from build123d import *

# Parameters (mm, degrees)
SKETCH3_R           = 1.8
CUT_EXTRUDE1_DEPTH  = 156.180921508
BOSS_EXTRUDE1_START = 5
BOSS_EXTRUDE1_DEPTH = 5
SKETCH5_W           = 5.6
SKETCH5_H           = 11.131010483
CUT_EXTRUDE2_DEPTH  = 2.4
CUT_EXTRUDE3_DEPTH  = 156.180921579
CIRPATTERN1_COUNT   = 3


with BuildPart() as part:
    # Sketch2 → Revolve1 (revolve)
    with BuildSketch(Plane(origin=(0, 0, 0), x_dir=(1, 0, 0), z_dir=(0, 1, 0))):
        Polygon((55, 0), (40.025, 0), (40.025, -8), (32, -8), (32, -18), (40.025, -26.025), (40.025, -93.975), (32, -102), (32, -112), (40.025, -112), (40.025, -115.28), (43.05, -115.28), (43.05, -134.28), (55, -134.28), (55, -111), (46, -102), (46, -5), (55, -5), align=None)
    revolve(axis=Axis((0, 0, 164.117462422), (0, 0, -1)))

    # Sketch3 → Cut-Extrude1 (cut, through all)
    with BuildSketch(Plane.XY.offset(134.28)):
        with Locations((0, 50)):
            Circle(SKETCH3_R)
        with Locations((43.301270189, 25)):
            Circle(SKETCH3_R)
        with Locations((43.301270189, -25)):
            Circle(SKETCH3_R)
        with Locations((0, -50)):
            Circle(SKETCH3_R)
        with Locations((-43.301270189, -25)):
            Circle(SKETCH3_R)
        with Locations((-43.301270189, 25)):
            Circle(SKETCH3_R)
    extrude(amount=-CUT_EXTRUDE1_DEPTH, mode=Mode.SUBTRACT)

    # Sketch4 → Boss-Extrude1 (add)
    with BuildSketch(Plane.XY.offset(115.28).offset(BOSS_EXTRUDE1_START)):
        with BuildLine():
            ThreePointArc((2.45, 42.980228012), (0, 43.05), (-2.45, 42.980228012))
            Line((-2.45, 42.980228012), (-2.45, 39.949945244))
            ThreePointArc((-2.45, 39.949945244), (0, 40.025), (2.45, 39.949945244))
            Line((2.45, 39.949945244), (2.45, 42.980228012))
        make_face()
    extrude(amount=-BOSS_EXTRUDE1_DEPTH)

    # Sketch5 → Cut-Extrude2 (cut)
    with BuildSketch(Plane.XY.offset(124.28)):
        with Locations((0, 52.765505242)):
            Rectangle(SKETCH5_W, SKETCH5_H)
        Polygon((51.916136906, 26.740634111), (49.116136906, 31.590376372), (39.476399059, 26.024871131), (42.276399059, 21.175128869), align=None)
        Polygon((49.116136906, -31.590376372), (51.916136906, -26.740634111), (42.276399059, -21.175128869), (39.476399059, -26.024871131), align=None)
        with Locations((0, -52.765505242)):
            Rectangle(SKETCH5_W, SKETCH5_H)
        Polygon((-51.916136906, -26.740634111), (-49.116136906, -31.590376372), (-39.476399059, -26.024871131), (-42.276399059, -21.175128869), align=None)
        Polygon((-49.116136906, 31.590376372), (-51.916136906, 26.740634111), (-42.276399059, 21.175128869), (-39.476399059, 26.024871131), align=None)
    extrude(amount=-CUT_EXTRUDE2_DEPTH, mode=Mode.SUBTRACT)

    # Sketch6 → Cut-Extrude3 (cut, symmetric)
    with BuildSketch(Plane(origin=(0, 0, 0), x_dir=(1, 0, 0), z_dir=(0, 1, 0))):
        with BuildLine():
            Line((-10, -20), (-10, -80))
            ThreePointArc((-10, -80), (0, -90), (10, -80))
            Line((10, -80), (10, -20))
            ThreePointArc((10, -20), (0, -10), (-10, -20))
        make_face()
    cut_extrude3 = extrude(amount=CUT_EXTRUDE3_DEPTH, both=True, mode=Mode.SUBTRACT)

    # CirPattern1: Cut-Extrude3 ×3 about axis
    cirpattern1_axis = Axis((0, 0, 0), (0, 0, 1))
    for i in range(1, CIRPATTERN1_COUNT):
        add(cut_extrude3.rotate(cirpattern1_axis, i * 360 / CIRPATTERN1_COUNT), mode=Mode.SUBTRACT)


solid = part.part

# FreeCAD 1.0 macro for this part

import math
import FreeCAD as App
import Part
import Sketcher
Q = App.Units.Quantity

doc = App.newDocument("Part")
body = doc.addObject("PartDesign::Body", "Body")

sketch1 = doc.addObject("Sketcher::SketchObject", "Sketch")
body.addObject(sketch1)
sketch1.AttachmentSupport = (doc.XZ_Plane, [""])
sketch1.MapMode = "FlatFace"
sketch1.addGeometry([
    Part.LineSegment(App.Vector(55, 0, 0), App.Vector(40, 0, 0)),
    Part.LineSegment(App.Vector(40, 0, 0), App.Vector(40, 8, 0)),
    Part.LineSegment(App.Vector(40, 8, 0), App.Vector(32, 8, 0)),
    Part.LineSegment(App.Vector(32, 8, 0), App.Vector(32, 18, 0)),
    Part.LineSegment(App.Vector(32, 18, 0), App.Vector(40, 26, 0)),
    Part.LineSegment(App.Vector(40, 26, 0), App.Vector(40, 94, 0)),
    Part.LineSegment(App.Vector(40, 94, 0), App.Vector(32, 102, 0)),
    Part.LineSegment(App.Vector(32, 102, 0), App.Vector(32, 112, 0)),
    Part.LineSegment(App.Vector(32, 112, 0), App.Vector(40, 112, 0)),
    Part.LineSegment(App.Vector(40, 112, 0), App.Vector(40, 115.3, 0)),
    Part.LineSegment(App.Vector(40, 115.3, 0), App.Vector(43, 115.3, 0)),
    Part.LineSegment(App.Vector(43, 115.3, 0), App.Vector(43, 134.3, 0)),
    Part.LineSegment(App.Vector(43, 134.3, 0), App.Vector(55, 134.3, 0)),
    Part.LineSegment(App.Vector(55, 134.3, 0), App.Vector(55, 111, 0)),
    Part.LineSegment(App.Vector(55, 111, 0), App.Vector(46, 102, 0)),
    Part.LineSegment(App.Vector(46, 102, 0), App.Vector(46, 5, 0)),
    Part.LineSegment(App.Vector(46, 5, 0), App.Vector(55, 5, 0)),
    Part.LineSegment(App.Vector(55, 5, 0), App.Vector(55, 0, 0)),
], False)
sketch1.addConstraint([
    Sketcher.Constraint("Coincident", 0, 2, 1, 1),
    Sketcher.Constraint("Coincident", 1, 2, 2, 1),
    Sketcher.Constraint("Coincident", 2, 2, 3, 1),
    Sketcher.Constraint("Coincident", 3, 2, 4, 1),
    Sketcher.Constraint("Coincident", 4, 2, 5, 1),
    Sketcher.Constraint("Coincident", 5, 2, 6, 1),
    Sketcher.Constraint("Coincident", 6, 2, 7, 1),
    Sketcher.Constraint("Coincident", 7, 2, 8, 1),
    Sketcher.Constraint("Coincident", 8, 2, 9, 1),
    Sketcher.Constraint("Coincident", 9, 2, 10, 1),
    Sketcher.Constraint("Coincident", 10, 2, 11, 1),
    Sketcher.Constraint("Coincident", 11, 2, 12, 1),
    Sketcher.Constraint("Coincident", 12, 2, 13, 1),
    Sketcher.Constraint("Coincident", 13, 2, 14, 1),
    Sketcher.Constraint("Coincident", 14, 2, 15, 1),
    Sketcher.Constraint("Coincident", 15, 2, 16, 1),
    Sketcher.Constraint("Coincident", 16, 2, 17, 1),
    Sketcher.Constraint("Coincident", 17, 2, 0, 1),
    Sketcher.Constraint("Horizontal", 0),
    Sketcher.Constraint("Vertical", 1),
    Sketcher.Constraint("Horizontal", 2),
    Sketcher.Constraint("Vertical", 3),
    Sketcher.Constraint("Vertical", 5),
    Sketcher.Constraint("Vertical", 7),
    Sketcher.Constraint("Horizontal", 8),
    Sketcher.Constraint("Vertical", 9),
    Sketcher.Constraint("Horizontal", 10),
    Sketcher.Constraint("Vertical", 11),
    Sketcher.Constraint("Horizontal", 12),
    Sketcher.Constraint("Vertical", 13),
    Sketcher.Constraint("Vertical", 15),
    Sketcher.Constraint("Horizontal", 16),
    Sketcher.Constraint("Vertical", 17),
    Sketcher.Constraint("PointOnObject", 0, 2, -1),
    Sketcher.Constraint("Perpendicular", 4, 6),
    Sketcher.Constraint("Perpendicular", 6, 14),
    Sketcher.Constraint("Horizontal", 6, 2, 14, 2),
    Sketcher.Constraint("Vertical", 1, 2, 4, 2),
    Sketcher.Constraint("Vertical", 3, 2, 6, 2),
    Sketcher.Constraint("Vertical", 5, 2, 8, 2),
    Sketcher.Constraint("Vertical", 13, 2, 16, 2),
    Sketcher.Constraint("Equal", 3, 7),
    Sketcher.Constraint("Equal", 4, 6),
    Sketcher.Constraint("DistanceX", 16, 1, 16, 2, 9.0),
    Sketcher.Constraint("DistanceY", 1, 1, 1, 2, 8.0),
    Sketcher.Constraint("DistanceY", 3, 1, 3, 2, 10.0),
    Sketcher.Constraint("DistanceY", 11, 1, 11, 2, 19.0),
    Sketcher.Constraint("DistanceY", 15, 2, 15, 1, 97.0),
    Sketcher.Constraint("DistanceY", 17, 2, 17, 1, 5.0),
    Sketcher.Constraint("DistanceX", -1, 1, 2, 2, 32.0),
    Sketcher.Constraint("DistanceX", -1, 1, 12, 2, 55.0),
    Sketcher.Constraint("DistanceX", 12, 1, 12, 2, 11.95),
    Sketcher.Constraint("DistanceY", 5, 1, 5, 2, 67.95),
    Sketcher.Constraint("DistanceY", 9, 1, 9, 2, 3.28),
])
revolution = doc.addObject("PartDesign::Revolution", "Revolution")
body.addObject(revolution)
revolution.Profile = sketch1
revolution.ReferenceAxis = (sketch1, ["V_Axis"])
revolution.Angle = 360

sketch2 = doc.addObject("Sketcher::SketchObject", "Sketch001")
body.addObject(sketch2)
sketch2.AttachmentSupport = (doc.XY_Plane, [""])
sketch2.MapMode = "FlatFace"
sketch2.AttachmentOffset = App.Placement(App.Vector(0, 0, 134.28), App.Rotation())
sketch2.addGeometry([
    Part.Circle(App.Vector(0, 50, 0), App.Vector(0, 0, 1), 1.8),
    Part.Circle(App.Vector(43.3, 25, 0), App.Vector(0, 0, 1), 1.8),
    Part.Circle(App.Vector(43.3, -25, 0), App.Vector(0, 0, 1), 1.8),
    Part.Circle(App.Vector(0, -50, 0), App.Vector(0, 0, 1), 1.8),
    Part.Circle(App.Vector(-43.3, -25, 0), App.Vector(0, 0, 1), 1.8),
    Part.Circle(App.Vector(-43.3, 25, 0), App.Vector(0, 0, 1), 1.8),
], False)
sketch2.addConstraint([
    Sketcher.Constraint("Equal", 0, 1),
    Sketcher.Constraint("Equal", 1, 2),
    Sketcher.Constraint("Equal", 2, 3),
    Sketcher.Constraint("Equal", 3, 4),
    Sketcher.Constraint("Equal", 4, 5),
    Sketcher.Constraint("Symmetric", 0, 3, 3, 3, -1, 1),
    Sketcher.Constraint("Symmetric", 1, 3, 4, 3, -1, 1),
    Sketcher.Constraint("Symmetric", 2, 3, 5, 3, -1, 1),
    Sketcher.Constraint("Symmetric", 2, 3, 4, 3, -2),
    Sketcher.Constraint("PointOnObject", 0, 3, -2),
    Sketcher.Constraint("Diameter", 0, 3.6),
    Sketcher.Constraint("DistanceY", -1, 1, 0, 3, 50.0),
    Sketcher.Constraint("DistanceY", -1, 1, 1, 3, 25.0),
    Sketcher.Constraint("DistanceX", -1, 1, 1, 3, 43.30127),
])
pocket1 = doc.addObject("PartDesign::Pocket", "Pocket")
body.addObject(pocket1)
pocket1.Profile = sketch2
pocket1.Type = "ThroughAll"

sketch3 = doc.addObject("Sketcher::SketchObject", "Sketch002")
body.addObject(sketch3)
sketch3.AttachmentSupport = (doc.XY_Plane, [""])
sketch3.MapMode = "FlatFace"
sketch3.AttachmentOffset = App.Placement(App.Vector(0, 0, 120.28), App.Rotation())
sketch3.addGeometry([
    Part.ArcOfCircle(Part.Circle(App.Vector(0, 0, 0), App.Vector(0, 0, 1), 43), math.radians(86.74), math.radians(93.26)),
    Part.LineSegment(App.Vector(-2.5, 43, 0), App.Vector(-2.5, 39.9, 0)),
    Part.ArcOfCircle(Part.Circle(App.Vector(0, 0, 0), App.Vector(0, 0, 1), 40), math.radians(86.49), math.radians(93.51)),
    Part.LineSegment(App.Vector(2.5, 39.9, 0), App.Vector(2.5, 43, 0)),
], False)
sketch3.addConstraint([
    Sketcher.Constraint("Coincident", 0, 2, 1, 1),
    Sketcher.Constraint("Coincident", 1, 2, 2, 2),
    Sketcher.Constraint("Coincident", 2, 1, 3, 1),
    Sketcher.Constraint("Coincident", 3, 2, 0, 1),
    Sketcher.Constraint("Vertical", 1),
    Sketcher.Constraint("Vertical", 3),
    Sketcher.Constraint("Coincident", 0, 3, -1, 1),
    Sketcher.Constraint("Coincident", 2, 3, -1, 1),
    Sketcher.Constraint("Horizontal", 1, 2, 2, 1),
    Sketcher.Constraint("Radius", 0, 43.05),
    Sketcher.Constraint("Radius", 2, 40.025),
    Sketcher.Constraint("DistanceX", 1, 2, 2, 1, 4.9),
])
pad1 = doc.addObject("PartDesign::Pad", "Pad")
body.addObject(pad1)
pad1.Profile = sketch3
pad1.Length = 5
pad1.Reversed = True

sketch4 = doc.addObject("Sketcher::SketchObject", "Sketch003")
body.addObject(sketch4)
sketch4.AttachmentSupport = (doc.XY_Plane, [""])
sketch4.MapMode = "FlatFace"
sketch4.AttachmentOffset = App.Placement(App.Vector(0, 0, 124.28), App.Rotation())
sketch4.addGeometry([
    Part.LineSegment(App.Vector(-3, 58, 0), App.Vector(-3, 47, 0)),
    Part.LineSegment(App.Vector(-3, 47, 0), App.Vector(3, 47, 0)),
    Part.LineSegment(App.Vector(3, 47, 0), App.Vector(3, 58, 0)),
    Part.LineSegment(App.Vector(3, 58, 0), App.Vector(-3, 58, 0)),
    Part.LineSegment(App.Vector(52, 27, 0), App.Vector(49, 32, 0)),
    Part.LineSegment(App.Vector(49, 32, 0), App.Vector(39, 26, 0)),
    Part.LineSegment(App.Vector(39, 26, 0), App.Vector(42, 21, 0)),
    Part.LineSegment(App.Vector(42, 21, 0), App.Vector(52, 27, 0)),
    Part.LineSegment(App.Vector(49, -32, 0), App.Vector(52, -27, 0)),
    Part.LineSegment(App.Vector(52, -27, 0), App.Vector(42, -21, 0)),
    Part.LineSegment(App.Vector(42, -21, 0), App.Vector(39, -26, 0)),
    Part.LineSegment(App.Vector(39, -26, 0), App.Vector(49, -32, 0)),
    Part.LineSegment(App.Vector(-3, -47, 0), App.Vector(-3, -58, 0)),
    Part.LineSegment(App.Vector(-3, -58, 0), App.Vector(3, -58, 0)),
    Part.LineSegment(App.Vector(3, -58, 0), App.Vector(3, -47, 0)),
    Part.LineSegment(App.Vector(3, -47, 0), App.Vector(-3, -47, 0)),
    Part.LineSegment(App.Vector(-52, -27, 0), App.Vector(-49, -32, 0)),
    Part.LineSegment(App.Vector(-49, -32, 0), App.Vector(-39, -26, 0)),
    Part.LineSegment(App.Vector(-39, -26, 0), App.Vector(-42, -21, 0)),
    Part.LineSegment(App.Vector(-42, -21, 0), App.Vector(-52, -27, 0)),
    Part.LineSegment(App.Vector(-49, 32, 0), App.Vector(-52, 27, 0)),
    Part.LineSegment(App.Vector(-52, 27, 0), App.Vector(-42, 21, 0)),
    Part.LineSegment(App.Vector(-42, 21, 0), App.Vector(-39, 26, 0)),
    Part.LineSegment(App.Vector(-39, 26, 0), App.Vector(-49, 32, 0)),
], False)
sketch4.addConstraint([
    Sketcher.Constraint("Coincident", 0, 2, 1, 1),
    Sketcher.Constraint("Coincident", 1, 2, 2, 1),
    Sketcher.Constraint("Coincident", 2, 2, 3, 1),
    Sketcher.Constraint("Coincident", 3, 2, 0, 1),
    Sketcher.Constraint("Coincident", 4, 2, 5, 1),
    Sketcher.Constraint("Coincident", 5, 2, 6, 1),
    Sketcher.Constraint("Coincident", 6, 2, 7, 1),
    Sketcher.Constraint("Coincident", 7, 2, 4, 1),
    Sketcher.Constraint("Coincident", 8, 2, 9, 1),
    Sketcher.Constraint("Coincident", 9, 2, 10, 1),
    Sketcher.Constraint("Coincident", 10, 2, 11, 1),
    Sketcher.Constraint("Coincident", 11, 2, 8, 1),
    Sketcher.Constraint("Coincident", 12, 2, 13, 1),
    Sketcher.Constraint("Coincident", 13, 2, 14, 1),
    Sketcher.Constraint("Coincident", 14, 2, 15, 1),
    Sketcher.Constraint("Coincident", 15, 2, 12, 1),
    Sketcher.Constraint("Coincident", 16, 2, 17, 1),
    Sketcher.Constraint("Coincident", 17, 2, 18, 1),
    Sketcher.Constraint("Coincident", 18, 2, 19, 1),
    Sketcher.Constraint("Coincident", 19, 2, 16, 1),
    Sketcher.Constraint("Coincident", 20, 2, 21, 1),
    Sketcher.Constraint("Coincident", 21, 2, 22, 1),
    Sketcher.Constraint("Coincident", 22, 2, 23, 1),
    Sketcher.Constraint("Coincident", 23, 2, 20, 1),
    Sketcher.Constraint("Vertical", 0),
    Sketcher.Constraint("Horizontal", 1),
    Sketcher.Constraint("Vertical", 2),
    Sketcher.Constraint("Horizontal", 3),
    Sketcher.Constraint("Vertical", 12),
    Sketcher.Constraint("Horizontal", 13),
    Sketcher.Constraint("Vertical", 14),
    Sketcher.Constraint("Horizontal", 15),
    Sketcher.Constraint("Symmetric", 2, 2, 12, 2, -1, 1),
    Sketcher.Constraint("Symmetric", 0, 2, 14, 2, -1, 1),
    Sketcher.Constraint("Symmetric", 4, 2, 16, 2, -1, 1),
    Sketcher.Constraint("Symmetric", 5, 2, 17, 2, -1, 1),
    Sketcher.Constraint("Symmetric", 6, 2, 18, 2, -1, 1),
    Sketcher.Constraint("Symmetric", 7, 2, 19, 2, -1, 1),
    Sketcher.Constraint("Symmetric", 8, 2, 20, 2, -1, 1),
    Sketcher.Constraint("Symmetric", 9, 2, 21, 2, -1, 1),
    Sketcher.Constraint("Symmetric", 10, 2, 22, 2, -1, 1),
    Sketcher.Constraint("Symmetric", 11, 2, 23, 2, -1, 1),
    Sketcher.Constraint("Symmetric", 11, 2, 16, 2, -2),
    Sketcher.Constraint("Symmetric", 10, 2, 17, 2, -2),
    Sketcher.Constraint("Symmetric", 9, 2, 18, 2, -2),
    Sketcher.Constraint("Symmetric", 8, 2, 19, 2, -2),
    Sketcher.Constraint("Perpendicular", 4, 5),
    Sketcher.Constraint("Perpendicular", 5, 6),
    Sketcher.Constraint("Perpendicular", 6, 7),
    Sketcher.Constraint("Vertical", 3, 2, 12, 2),
    Sketcher.Constraint("Angle", 4, Q("120 deg")),
    Sketcher.Constraint("DistanceX", 1, 1, 1, 2, 5.6),
    Sketcher.Constraint("Distance", 4, 5.6),
    Sketcher.Constraint("DistanceY", -1, 1, 0, 2, 47.2),
    Sketcher.Constraint("DistanceY", 9, 2, 5, 2, 47.2),
    Sketcher.Constraint("DistanceY", 0, 2, 0, 1, 11.13101),
    Sketcher.Constraint("DistanceX", -1, 1, 5, 2, 39.476399),
    Sketcher.Constraint("Distance", 5, 11.13101),
])
pocket2 = doc.addObject("PartDesign::Pocket", "Pocket001")
body.addObject(pocket2)
pocket2.Profile = sketch4
pocket2.Length = 2.4

sketch5 = doc.addObject("Sketcher::SketchObject", "Sketch004")
body.addObject(sketch5)
sketch5.AttachmentSupport = (doc.XZ_Plane, [""])
sketch5.MapMode = "FlatFace"
sketch5.addGeometry([
    Part.LineSegment(App.Vector(-10, 20, 0), App.Vector(-10, 80, 0)),
    Part.ArcOfCircle(Part.Circle(App.Vector(0, 80, 0), App.Vector(0, 0, 1), 10), math.radians(0), math.radians(180)),
    Part.LineSegment(App.Vector(10, 80, 0), App.Vector(10, 20, 0)),
    Part.ArcOfCircle(Part.Circle(App.Vector(0, 20, 0), App.Vector(0, 0, 1), 10), math.radians(180), math.radians(360)),
], False)
sketch5.addConstraint([
    Sketcher.Constraint("Tangent", 0, 2, 1, 2),
    Sketcher.Constraint("Tangent", 1, 1, 2, 1),
    Sketcher.Constraint("Tangent", 2, 2, 3, 2),
    Sketcher.Constraint("Tangent", 3, 1, 0, 1),
    Sketcher.Constraint("Vertical", 0),
    Sketcher.Constraint("Vertical", 2),
    Sketcher.Constraint("PointOnObject", 1, 3, -2),
    Sketcher.Constraint("Radius", 1, 10.0),
    Sketcher.Constraint("DistanceY", 0, 1, 0, 2, 60.0),
    Sketcher.Constraint("DistanceY", -1, 1, 1, 3, 80.0),
])
pocket3 = doc.addObject("PartDesign::Pocket", "Pocket002")
body.addObject(pocket3)
pocket3.Profile = sketch5
pocket3.Length = 312.361843
pocket3.Midplane = True
doc.recompute()

polarpattern = doc.addObject("PartDesign::PolarPattern", "PolarPattern")
body.addObject(polarpattern)
polarpattern.Originals = [pocket3]
polarpattern.Axis = (doc.Z_Axis, [""])
polarpattern.Angle = 360
polarpattern.Occurrences = 3
body.Tip = polarpattern

doc.recompute()
